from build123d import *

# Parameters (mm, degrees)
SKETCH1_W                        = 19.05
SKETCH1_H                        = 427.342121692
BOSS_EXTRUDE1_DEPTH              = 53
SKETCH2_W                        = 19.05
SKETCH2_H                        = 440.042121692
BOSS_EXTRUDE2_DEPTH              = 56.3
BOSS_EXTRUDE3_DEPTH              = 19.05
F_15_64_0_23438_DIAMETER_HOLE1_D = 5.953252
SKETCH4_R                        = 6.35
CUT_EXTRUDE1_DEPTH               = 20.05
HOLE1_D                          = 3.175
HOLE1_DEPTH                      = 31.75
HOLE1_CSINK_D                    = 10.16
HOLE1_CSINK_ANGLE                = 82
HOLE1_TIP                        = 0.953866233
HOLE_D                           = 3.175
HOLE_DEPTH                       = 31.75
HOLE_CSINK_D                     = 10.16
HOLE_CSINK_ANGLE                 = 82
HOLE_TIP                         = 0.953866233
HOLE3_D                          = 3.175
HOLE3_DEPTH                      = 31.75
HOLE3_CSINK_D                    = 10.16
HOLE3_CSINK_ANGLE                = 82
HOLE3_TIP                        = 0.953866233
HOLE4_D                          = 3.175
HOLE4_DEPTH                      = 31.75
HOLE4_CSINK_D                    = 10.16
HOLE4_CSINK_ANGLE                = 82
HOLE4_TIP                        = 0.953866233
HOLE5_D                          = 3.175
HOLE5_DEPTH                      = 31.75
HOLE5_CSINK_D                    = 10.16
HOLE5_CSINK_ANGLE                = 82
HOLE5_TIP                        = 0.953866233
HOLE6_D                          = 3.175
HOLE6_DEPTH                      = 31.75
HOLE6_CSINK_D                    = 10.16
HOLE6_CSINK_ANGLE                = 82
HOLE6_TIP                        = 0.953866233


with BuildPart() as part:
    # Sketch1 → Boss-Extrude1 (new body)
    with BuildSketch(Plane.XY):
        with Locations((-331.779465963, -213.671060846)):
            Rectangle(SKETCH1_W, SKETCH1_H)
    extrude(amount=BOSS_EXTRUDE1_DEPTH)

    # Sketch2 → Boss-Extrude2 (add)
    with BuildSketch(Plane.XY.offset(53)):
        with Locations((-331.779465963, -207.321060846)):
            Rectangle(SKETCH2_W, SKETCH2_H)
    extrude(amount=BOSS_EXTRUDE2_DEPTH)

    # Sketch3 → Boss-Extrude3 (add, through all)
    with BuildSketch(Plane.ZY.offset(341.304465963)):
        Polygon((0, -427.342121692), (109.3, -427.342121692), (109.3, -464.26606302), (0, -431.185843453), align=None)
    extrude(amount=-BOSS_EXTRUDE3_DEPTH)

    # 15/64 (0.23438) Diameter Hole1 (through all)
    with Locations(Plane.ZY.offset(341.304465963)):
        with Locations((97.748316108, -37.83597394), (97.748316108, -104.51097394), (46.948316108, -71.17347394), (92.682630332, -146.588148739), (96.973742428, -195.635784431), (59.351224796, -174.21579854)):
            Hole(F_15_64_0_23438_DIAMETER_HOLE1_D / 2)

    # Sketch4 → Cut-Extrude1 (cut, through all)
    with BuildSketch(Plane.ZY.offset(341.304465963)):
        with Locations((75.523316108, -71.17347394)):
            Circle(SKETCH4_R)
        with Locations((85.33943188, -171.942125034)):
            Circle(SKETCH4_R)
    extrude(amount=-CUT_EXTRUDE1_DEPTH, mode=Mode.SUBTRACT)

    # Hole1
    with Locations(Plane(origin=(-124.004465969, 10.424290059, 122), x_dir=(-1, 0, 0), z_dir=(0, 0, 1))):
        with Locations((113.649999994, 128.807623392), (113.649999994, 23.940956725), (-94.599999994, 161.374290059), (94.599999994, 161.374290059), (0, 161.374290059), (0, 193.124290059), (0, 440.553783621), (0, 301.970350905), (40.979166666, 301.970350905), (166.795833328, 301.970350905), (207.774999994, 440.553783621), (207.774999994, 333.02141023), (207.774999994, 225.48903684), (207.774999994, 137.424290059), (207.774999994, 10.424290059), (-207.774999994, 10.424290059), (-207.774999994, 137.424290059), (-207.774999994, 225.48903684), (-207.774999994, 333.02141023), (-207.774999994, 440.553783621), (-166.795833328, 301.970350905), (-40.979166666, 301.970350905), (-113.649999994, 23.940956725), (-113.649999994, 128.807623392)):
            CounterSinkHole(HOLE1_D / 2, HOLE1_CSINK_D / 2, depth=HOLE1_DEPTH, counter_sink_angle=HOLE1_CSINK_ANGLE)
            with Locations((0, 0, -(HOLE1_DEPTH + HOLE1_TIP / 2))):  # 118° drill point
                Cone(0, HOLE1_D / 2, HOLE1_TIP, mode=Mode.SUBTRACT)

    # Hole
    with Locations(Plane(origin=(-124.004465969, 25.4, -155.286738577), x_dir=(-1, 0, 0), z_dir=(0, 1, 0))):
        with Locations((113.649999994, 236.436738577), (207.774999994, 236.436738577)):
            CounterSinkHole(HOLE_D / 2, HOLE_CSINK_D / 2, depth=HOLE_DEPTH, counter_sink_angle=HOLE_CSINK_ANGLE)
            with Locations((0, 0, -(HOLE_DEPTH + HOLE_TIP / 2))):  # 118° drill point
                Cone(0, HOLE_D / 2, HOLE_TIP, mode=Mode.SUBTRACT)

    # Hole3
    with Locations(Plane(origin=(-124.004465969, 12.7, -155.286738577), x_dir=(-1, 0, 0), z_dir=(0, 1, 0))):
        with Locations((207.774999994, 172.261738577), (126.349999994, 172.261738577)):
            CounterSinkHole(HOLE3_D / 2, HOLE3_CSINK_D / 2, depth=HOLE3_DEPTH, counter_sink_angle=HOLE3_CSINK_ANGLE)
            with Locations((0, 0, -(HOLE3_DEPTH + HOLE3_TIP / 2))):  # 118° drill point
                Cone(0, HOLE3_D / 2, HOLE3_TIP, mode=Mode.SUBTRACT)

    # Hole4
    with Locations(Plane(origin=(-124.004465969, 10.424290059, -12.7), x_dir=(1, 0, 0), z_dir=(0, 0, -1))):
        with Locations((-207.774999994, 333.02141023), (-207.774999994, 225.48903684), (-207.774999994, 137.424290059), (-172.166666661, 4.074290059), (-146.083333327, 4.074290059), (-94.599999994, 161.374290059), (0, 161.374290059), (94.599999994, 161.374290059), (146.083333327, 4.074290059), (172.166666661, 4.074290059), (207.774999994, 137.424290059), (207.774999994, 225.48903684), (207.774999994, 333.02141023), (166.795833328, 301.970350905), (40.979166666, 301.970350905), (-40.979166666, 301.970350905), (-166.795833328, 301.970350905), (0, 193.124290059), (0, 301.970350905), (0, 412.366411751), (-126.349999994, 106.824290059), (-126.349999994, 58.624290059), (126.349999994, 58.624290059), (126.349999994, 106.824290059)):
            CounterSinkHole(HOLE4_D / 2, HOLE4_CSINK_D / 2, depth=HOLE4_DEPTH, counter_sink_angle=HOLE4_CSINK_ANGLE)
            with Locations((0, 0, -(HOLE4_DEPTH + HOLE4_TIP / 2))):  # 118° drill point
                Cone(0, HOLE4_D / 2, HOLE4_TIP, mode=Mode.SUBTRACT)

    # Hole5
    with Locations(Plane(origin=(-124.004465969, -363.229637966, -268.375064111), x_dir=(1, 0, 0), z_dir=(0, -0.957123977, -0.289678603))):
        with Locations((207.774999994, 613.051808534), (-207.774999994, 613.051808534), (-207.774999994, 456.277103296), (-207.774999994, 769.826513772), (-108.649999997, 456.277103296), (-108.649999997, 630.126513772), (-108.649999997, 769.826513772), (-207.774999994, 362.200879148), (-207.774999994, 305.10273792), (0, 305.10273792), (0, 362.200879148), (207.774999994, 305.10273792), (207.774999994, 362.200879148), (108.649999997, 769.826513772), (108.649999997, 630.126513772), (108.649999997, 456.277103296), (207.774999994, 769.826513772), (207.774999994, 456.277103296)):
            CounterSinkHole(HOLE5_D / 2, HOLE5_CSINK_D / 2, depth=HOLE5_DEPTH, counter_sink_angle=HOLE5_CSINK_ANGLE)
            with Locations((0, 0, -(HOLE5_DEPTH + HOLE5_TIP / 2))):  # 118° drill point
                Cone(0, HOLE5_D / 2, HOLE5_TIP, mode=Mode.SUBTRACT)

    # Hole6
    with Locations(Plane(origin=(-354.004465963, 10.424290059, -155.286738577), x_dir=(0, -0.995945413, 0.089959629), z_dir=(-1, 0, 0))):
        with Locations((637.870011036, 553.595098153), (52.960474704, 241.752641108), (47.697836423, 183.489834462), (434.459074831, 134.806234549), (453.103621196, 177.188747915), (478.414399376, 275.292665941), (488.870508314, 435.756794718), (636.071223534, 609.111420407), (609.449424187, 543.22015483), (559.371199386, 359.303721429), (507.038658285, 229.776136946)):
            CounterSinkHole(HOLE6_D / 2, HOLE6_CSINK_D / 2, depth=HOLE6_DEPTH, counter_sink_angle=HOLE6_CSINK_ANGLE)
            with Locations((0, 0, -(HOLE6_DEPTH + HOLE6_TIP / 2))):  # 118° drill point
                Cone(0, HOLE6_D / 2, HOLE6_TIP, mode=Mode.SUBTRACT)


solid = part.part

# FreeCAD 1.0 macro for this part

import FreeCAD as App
import Part
import Sketcher
Q = App.Units.Quantity


def add_polygon(sketch, points):
    """Adds a closed chain of lines whose ends are joined by coincident constraints."""
    first, n = sketch.GeometryCount, len(points)
    for a, b in zip(points, points[1:] + points[:1]):
        sketch.addGeometry(Part.LineSegment(App.Vector(*a, 0), App.Vector(*b, 0)), False)
    for i in range(n):
        sketch.addConstraint(Sketcher.Constraint("Coincident", first + i, 2, first + (i + 1) % n, 1))

doc = App.newDocument("Part")
params = doc.addObject("Spreadsheet::Sheet", "Params")
for row, (alias, value) in enumerate([
    ("sketch1_width", "0.75 in"),
    ("pad1_length", "53 mm"),
    ("sketch2_width", "0.75 in"),
    ("pad2_length", "56.3 mm"),
    ("pad3_length", "0.75 in"),
    ("hole_diameter", "5.953252 mm"),
    ("sketch5_diameter", "0.5 in"),
    ("sketch6_diameter", "0.125 in"),
    ("hole2_diameter", "0.125 in"),
    ("hole2_depth", "1.25 in"),
    ("hole2_csink_diameter", "0.4 in"),
    ("sketch7_diameter", "0.125 in"),
    ("hole3_diameter", "0.125 in"),
    ("hole3_depth", "1.25 in"),
    ("hole3_csink_diameter", "0.4 in"),
    ("sketch8_diameter", "0.125 in"),
    ("hole4_diameter", "0.125 in"),
    ("hole4_depth", "1.25 in"),
    ("hole4_csink_diameter", "0.4 in"),
    ("sketch9_diameter", "0.125 in"),
    ("hole5_diameter", "0.125 in"),
    ("hole5_depth", "1.25 in"),
    ("hole5_csink_diameter", "0.4 in"),
    ("sketch10_diameter", "0.125 in"),
    ("hole6_diameter", "0.125 in"),
    ("hole6_depth", "1.25 in"),
    ("hole6_csink_diameter", "0.4 in"),
    ("sketch11_diameter", "0.125 in"),
    ("hole7_diameter", "0.125 in"),
    ("hole7_depth", "1.25 in"),
    ("hole7_csink_diameter", "0.4 in"),
], start=1):
    params.set(f"A{row}", alias)
    params.set(f"B{row}", "=" + value)
    params.setAlias(f"B{row}", alias)

body = doc.addObject("PartDesign::Body", "Body")

# Sketch on XY plane
sketch1 = body.newObject("Sketcher::SketchObject", "Sketch")
sketch1.AttachmentSupport = (doc.getObject("XY_Plane"), [""])
sketch1.MapMode = "FlatFace"
add_polygon(sketch1, [(-341.304466, 0), (-341.304466, -427.342122), (-322.254466, -427.342122), (-322.254466, 0)])  # lines 0-3
sketch1.addConstraint(Sketcher.Constraint("Vertical", 0))
sketch1.addConstraint(Sketcher.Constraint("Horizontal", 1))
sketch1.addConstraint(Sketcher.Constraint("Vertical", 2))
sketch1.addConstraint(Sketcher.Constraint("Horizontal", 3))
sketch1.addConstraint(Sketcher.Constraint("PointOnObject", 2, 2, -1))
sketch1.addConstraint(Sketcher.Constraint("DistanceX", 1, 1, 1, 2, Q("0.75 in")))
sketch1.addConstraint(Sketcher.Constraint("DistanceY", 0, 2, 0, 1, 427.342122))
sketch1.addConstraint(Sketcher.Constraint("DistanceX", 0, 2, -1, 1, 341.304466))
sketch1.setExpression("Constraints[9]", "Params.sketch1_width")
pad1 = body.newObject("PartDesign::Pad", "Pad")
pad1.Profile = sketch1
pad1.setExpression("Length", "Params.pad1_length")

# Sketch on XY plane
sketch2 = body.newObject("Sketcher::SketchObject", "Sketch001")
sketch2.AttachmentSupport = (doc.getObject("XY_Plane"), [""])
sketch2.MapMode = "FlatFace"
sketch2.AttachmentOffset = App.Placement(App.Vector(0, 0, 53), App.Rotation())
add_polygon(sketch2, [(-341.304466, 12.7), (-341.304466, -427.342122), (-322.254466, -427.342122), (-322.254466, 12.7)])  # lines 0-3
sketch2.addConstraint(Sketcher.Constraint("Vertical", 0))
sketch2.addConstraint(Sketcher.Constraint("Horizontal", 1))
sketch2.addConstraint(Sketcher.Constraint("Vertical", 2))
sketch2.addConstraint(Sketcher.Constraint("Horizontal", 3))
sketch2.addConstraint(Sketcher.Constraint("DistanceX", 1, 1, 1, 2, Q("0.75 in")))
sketch2.addConstraint(Sketcher.Constraint("DistanceY", -1, 1, 2, 2, Q("0.5 in")))
sketch2.addConstraint(Sketcher.Constraint("DistanceY", 0, 2, 0, 1, 440.042122))
sketch2.addConstraint(Sketcher.Constraint("DistanceX", 0, 2, -1, 1, 341.304466))
sketch2.setExpression("Constraints[8]", "Params.sketch2_width")
pad2 = body.newObject("PartDesign::Pad", "Pad001")
pad2.Profile = sketch2
pad2.setExpression("Length", "Params.pad2_length")

# Sketch on YZ plane
sketch3 = body.newObject("Sketcher::SketchObject", "Sketch002")
sketch3.AttachmentSupport = (doc.getObject("YZ_Plane"), [""])
sketch3.MapMode = "FlatFace"
sketch3.AttachmentOffset = App.Placement(App.Vector(0, 0, -341.304466), App.Rotation())
add_polygon(sketch3, [(-427.342122, 109.3), (-427.342122, 0), (-431.185843, 0), (-464.266063, 109.3)])  # lines 0-3
sketch3.addConstraint(Sketcher.Constraint("Vertical", 0))
sketch3.addConstraint(Sketcher.Constraint("Horizontal", 1))
sketch3.addConstraint(Sketcher.Constraint("Horizontal", 3))
sketch3.addConstraint(Sketcher.Constraint("PointOnObject", 0, 2, -1))
sketch3.addConstraint(Sketcher.Constraint("DistanceY", 0, 2, 0, 1, 109.3))
sketch3.addConstraint(Sketcher.Constraint("DistanceX", 1, 2, 1, 1, 3.843722))
sketch3.addConstraint(Sketcher.Constraint("DistanceX", 3, 1, 3, 2, 36.923941))
sketch3.addConstraint(Sketcher.Constraint("DistanceX", 0, 2, -1, 1, 427.342122))
pad3 = body.newObject("PartDesign::Pad", "Pad002")
pad3.Profile = sketch3
pad3.setExpression("Length", "Params.pad3_length")

# Sketch on YZ plane
sketch4 = body.newObject("Sketcher::SketchObject", "Sketch003")
sketch4.AttachmentSupport = (doc.getObject("YZ_Plane"), [""])
sketch4.MapMode = "FlatFace"
sketch4.AttachmentOffset = App.Placement(App.Vector(0, 0, -341.304466), App.Rotation())
sketch4.addGeometry(Part.Circle(App.Vector(-37.835974, 97.748316, 0), App.Vector(0, 0, 1), 2.976626), False)
sketch4.addGeometry(Part.Circle(App.Vector(-104.510974, 97.748316, 0), App.Vector(0, 0, 1), 2.976626), False)
sketch4.addGeometry(Part.Circle(App.Vector(-71.173474, 46.948316, 0), App.Vector(0, 0, 1), 2.976626), False)
sketch4.addGeometry(Part.Circle(App.Vector(-146.588149, 92.68263, 0), App.Vector(0, 0, 1), 2.976626), False)
sketch4.addGeometry(Part.Circle(App.Vector(-195.635784, 96.973742, 0), App.Vector(0, 0, 1), 2.976626), False)
sketch4.addGeometry(Part.Circle(App.Vector(-174.215799, 59.351225, 0), App.Vector(0, 0, 1), 2.976626), False)
sketch4.addConstraint(Sketcher.Constraint("Equal", 0, 1))
sketch4.addConstraint(Sketcher.Constraint("Equal", 1, 2))
sketch4.addConstraint(Sketcher.Constraint("Equal", 2, 3))
sketch4.addConstraint(Sketcher.Constraint("Equal", 3, 4))
sketch4.addConstraint(Sketcher.Constraint("Equal", 4, 5))
sketch4.addConstraint(Sketcher.Constraint("Horizontal", 0, 3, 1, 3))
sketch4.addConstraint(Sketcher.Constraint("DistanceY", 2, 3, 0, 3, Q("2 in")))
sketch4.addConstraint(Sketcher.Constraint("DistanceX", 1, 3, 0, 3, Q("2.625 in")))
sketch4.addConstraint(Sketcher.Constraint("DistanceX", 2, 3, 0, 3, Q("1.3125 in")))
sketch4.addConstraint(Sketcher.Constraint("Diameter", 0, 5.953252))
sketch4.addConstraint(Sketcher.Constraint("DistanceX", 5, 3, -1, 1, 174.215799))
sketch4.addConstraint(Sketcher.Constraint("DistanceX", 3, 3, -1, 1, 146.588149))
sketch4.addConstraint(Sketcher.Constraint("DistanceY", -1, 1, 3, 3, 92.68263))
sketch4.addConstraint(Sketcher.Constraint("DistanceX", 4, 3, 1, 3, 91.12481))
sketch4.addConstraint(Sketcher.Constraint("DistanceY", 5, 3, 1, 3, 38.397091))
sketch4.addConstraint(Sketcher.Constraint("DistanceX", 0, 3, -1, 1, 37.835974))
sketch4.addConstraint(Sketcher.Constraint("DistanceY", -1, 1, 0, 3, 97.748316))
sketch4.addConstraint(Sketcher.Constraint("DistanceY", -1, 1, 4, 3, 96.973742))
doc.recompute()
hole = body.newObject("PartDesign::Hole", "Hole")
hole.Profile = sketch4
hole.ThreadType = "None"
hole.setExpression("Diameter", "Params.hole_diameter")
hole.DepthType = "ThroughAll"
hole.Reversed = True

# Sketch on YZ plane
sketch5 = body.newObject("Sketcher::SketchObject", "Sketch004")
sketch5.AttachmentSupport = (doc.getObject("YZ_Plane"), [""])
sketch5.MapMode = "FlatFace"
sketch5.AttachmentOffset = App.Placement(App.Vector(0, 0, -341.304466), App.Rotation())
sketch5.addGeometry(Part.Circle(App.Vector(-71.173474, 75.523316, 0), App.Vector(0, 0, 1), 6.35), False)
sketch5.addGeometry(Part.Circle(App.Vector(-171.942125, 85.339432, 0), App.Vector(0, 0, 1), 6.35), False)
sketch5.addConstraint(Sketcher.Constraint("Equal", 0, 1))
sketch5.addConstraint(Sketcher.Constraint("Diameter", 0, Q("0.5 in")))
sketch5.addConstraint(Sketcher.Constraint("DistanceY", -1, 1, 1, 3, 85.339432))
sketch5.addConstraint(Sketcher.Constraint("DistanceX", 1, 3, 0, 3, 100.768651))
sketch5.addConstraint(Sketcher.Constraint("DistanceX", 0, 3, -1, 1, 71.173474))
sketch5.addConstraint(Sketcher.Constraint("DistanceY", -1, 1, 0, 3, 75.523316))
sketch5.setExpression("Constraints[1]", "Params.sketch5_diameter")
pocket1 = body.newObject("PartDesign::Pocket", "Pocket")
pocket1.Profile = sketch5
pocket1.Type = "ThroughAll"
pocket1.Reversed = True

# Sketch on XY plane
sketch6 = body.newObject("Sketcher::SketchObject", "Sketch005")
sketch6.AttachmentSupport = (doc.getObject("XY_Plane"), [""])
sketch6.MapMode = "FlatFace"
sketch6.AttachmentOffset = App.Placement(App.Vector(0, 0, 122), App.Rotation())
sketch6.addGeometry(Part.Circle(App.Vector(-237.654466, -118.383333, 0), App.Vector(0, 0, 1), 1.5875), False)
sketch6.addGeometry(Part.Circle(App.Vector(-237.654466, -13.516667, 0), App.Vector(0, 0, 1), 1.5875), False)
sketch6.addGeometry(Part.Circle(App.Vector(-29.404466, -150.95, 0), App.Vector(0, 0, 1), 1.5875), False)
sketch6.addGeometry(Part.Circle(App.Vector(-218.604466, -150.95, 0), App.Vector(0, 0, 1), 1.5875), False)
sketch6.addGeometry(Part.Circle(App.Vector(-124.004466, -150.95, 0), App.Vector(0, 0, 1), 1.5875), False)
sketch6.addGeometry(Part.Circle(App.Vector(-124.004466, -182.7, 0), App.Vector(0, 0, 1), 1.5875), False)
sketch6.addGeometry(Part.Circle(App.Vector(-124.004466, -430.129494, 0), App.Vector(0, 0, 1), 1.5875), False)
sketch6.addGeometry(Part.Circle(App.Vector(-124.004466, -291.546061, 0), App.Vector(0, 0, 1), 1.5875), False)
sketch6.addGeometry(Part.Circle(App.Vector(-164.983633, -291.546061, 0), App.Vector(0, 0, 1), 1.5875), False)
sketch6.addGeometry(Part.Circle(App.Vector(-290.800299, -291.546061, 0), App.Vector(0, 0, 1), 1.5875), False)
sketch6.addGeometry(Part.Circle(App.Vector(-331.779466, -430.129494, 0), App.Vector(0, 0, 1), 1.5875), False)
sketch6.addGeometry(Part.Circle(App.Vector(-331.779466, -322.59712, 0), App.Vector(0, 0, 1), 1.5875), False)
sketch6.addGeometry(Part.Circle(App.Vector(-331.779466, -215.064747, 0), App.Vector(0, 0, 1), 1.5875), False)
sketch6.addGeometry(Part.Circle(App.Vector(-331.779466, -127, 0), App.Vector(0, 0, 1), 1.5875), False)
sketch6.addGeometry(Part.Circle(App.Vector(-331.779466, 0, 0), App.Vector(0, 0, 1), 1.5875), False)
sketch6.addGeometry(Part.Circle(App.Vector(83.770534, 0, 0), App.Vector(0, 0, 1), 1.5875), False)
sketch6.addGeometry(Part.Circle(App.Vector(83.770534, -127, 0), App.Vector(0, 0, 1), 1.5875), False)
sketch6.addGeometry(Part.Circle(App.Vector(83.770534, -215.064747, 0), App.Vector(0, 0, 1), 1.5875), False)
sketch6.addGeometry(Part.Circle(App.Vector(83.770534, -322.59712, 0), App.Vector(0, 0, 1), 1.5875), False)
sketch6.addGeometry(Part.Circle(App.Vector(83.770534, -430.129494, 0), App.Vector(0, 0, 1), 1.5875), False)
sketch6.addGeometry(Part.Circle(App.Vector(42.791367, -291.546061, 0), App.Vector(0, 0, 1), 1.5875), False)
sketch6.addGeometry(Part.Circle(App.Vector(-83.025299, -291.546061, 0), App.Vector(0, 0, 1), 1.5875), False)
sketch6.addGeometry(Part.Circle(App.Vector(-10.354466, -13.516667, 0), App.Vector(0, 0, 1), 1.5875), False)
sketch6.addGeometry(Part.Circle(App.Vector(-10.354466, -118.383333, 0), App.Vector(0, 0, 1), 1.5875), False)
sketch6.addConstraint(Sketcher.Constraint("Equal", 0, 1))
sketch6.addConstraint(Sketcher.Constraint("Equal", 1, 2))
sketch6.addConstraint(Sketcher.Constraint("Equal", 2, 3))
sketch6.addConstraint(Sketcher.Constraint("Equal", 3, 4))
sketch6.addConstraint(Sketcher.Constraint("Equal", 4, 5))
sketch6.addConstraint(Sketcher.Constraint("Equal", 5, 6))
sketch6.addConstraint(Sketcher.Constraint("Equal", 6, 7))
sketch6.addConstraint(Sketcher.Constraint("Equal", 7, 8))
sketch6.addConstraint(Sketcher.Constraint("Equal", 8, 9))
sketch6.addConstraint(Sketcher.Constraint("Equal", 9, 10))
sketch6.addConstraint(Sketcher.Constraint("Equal", 10, 11))
sketch6.addConstraint(Sketcher.Constraint("Equal", 11, 12))
sketch6.addConstraint(Sketcher.Constraint("Equal", 12, 13))
sketch6.addConstraint(Sketcher.Constraint("Equal", 13, 14))
sketch6.addConstraint(Sketcher.Constraint("Equal", 14, 15))
sketch6.addConstraint(Sketcher.Constraint("Equal", 15, 16))
sketch6.addConstraint(Sketcher.Constraint("Equal", 16, 17))
sketch6.addConstraint(Sketcher.Constraint("Equal", 17, 18))
sketch6.addConstraint(Sketcher.Constraint("Equal", 18, 19))
sketch6.addConstraint(Sketcher.Constraint("Equal", 19, 20))
sketch6.addConstraint(Sketcher.Constraint("Equal", 20, 21))
sketch6.addConstraint(Sketcher.Constraint("Equal", 21, 22))
sketch6.addConstraint(Sketcher.Constraint("Equal", 22, 23))
sketch6.addConstraint(Sketcher.Constraint("PointOnObject", 14, 3, -1))
sketch6.addConstraint(Sketcher.Constraint("PointOnObject", 15, 3, -1))
sketch6.addConstraint(Sketcher.Constraint("Horizontal", 2, 3, 3, 3))
sketch6.addConstraint(Sketcher.Constraint("Horizontal", 3, 3, 4, 3))
sketch6.addConstraint(Sketcher.Constraint("Horizontal", 7, 3, 8, 3))
sketch6.addConstraint(Sketcher.Constraint("Horizontal", 8, 3, 9, 3))
sketch6.addConstraint(Sketcher.Constraint("Horizontal", 6, 3, 10, 3))
sketch6.addConstraint(Sketcher.Constraint("Horizontal", 13, 3, 16, 3))
sketch6.addConstraint(Sketcher.Constraint("Horizontal", 12, 3, 17, 3))
sketch6.addConstraint(Sketcher.Constraint("Horizontal", 11, 3, 18, 3))
sketch6.addConstraint(Sketcher.Constraint("Horizontal", 10, 3, 19, 3))
sketch6.addConstraint(Sketcher.Constraint("Horizontal", 9, 3, 20, 3))
sketch6.addConstraint(Sketcher.Constraint("Horizontal", 20, 3, 21, 3))
sketch6.addConstraint(Sketcher.Constraint("Horizontal", 1, 3, 22, 3))
sketch6.addConstraint(Sketcher.Constraint("Horizontal", 0, 3, 23, 3))
sketch6.addConstraint(Sketcher.Constraint("Vertical", 0, 3, 1, 3))
sketch6.addConstraint(Sketcher.Constraint("Vertical", 4, 3, 5, 3))
sketch6.addConstraint(Sketcher.Constraint("Vertical", 5, 3, 6, 3))
sketch6.addConstraint(Sketcher.Constraint("Vertical", 6, 3, 7, 3))
sketch6.addConstraint(Sketcher.Constraint("Vertical", 10, 3, 11, 3))
sketch6.addConstraint(Sketcher.Constraint("Vertical", 11, 3, 12, 3))
sketch6.addConstraint(Sketcher.Constraint("Vertical", 12, 3, 13, 3))
sketch6.addConstraint(Sketcher.Constraint("Vertical", 13, 3, 14, 3))
sketch6.addConstraint(Sketcher.Constraint("Vertical", 15, 3, 16, 3))
sketch6.addConstraint(Sketcher.Constraint("Vertical", 16, 3, 17, 3))
sketch6.addConstraint(Sketcher.Constraint("Vertical", 17, 3, 18, 3))
sketch6.addConstraint(Sketcher.Constraint("Vertical", 18, 3, 19, 3))
sketch6.addConstraint(Sketcher.Constraint("Vertical", 22, 3, 23, 3))
sketch6.addConstraint(Sketcher.Constraint("Diameter", 0, Q("0.125 in")))
sketch6.addConstraint(Sketcher.Constraint("DistanceY", 13, 3, -1, 1, Q("5 in")))
sketch6.addConstraint(Sketcher.Constraint("DistanceX", 0, 3, 3, 3, Q("0.75 in")))
sketch6.addConstraint(Sketcher.Constraint("DistanceY", 5, 3, 4, 3, Q("1.25 in")))
sketch6.addConstraint(Sketcher.Constraint("DistanceX", 2, 3, 22, 3, Q("0.75 in")))
sketch6.addConstraint(Sketcher.Constraint("DistanceY", 2, 3, -1, 1, 150.95))
sketch6.addConstraint(Sketcher.Constraint("DistanceX", 9, 3, -1, 1, 290.800299))
sketch6.addConstraint(Sketcher.Constraint("DistanceX", 21, 3, -1, 1, 83.025299))
sketch6.addConstraint(Sketcher.Constraint("DistanceX", 0, 3, 2, 3, 208.25))
sketch6.addConstraint(Sketcher.Constraint("DistanceX", 4, 3, 2, 3, 94.6))
sketch6.addConstraint(Sketcher.Constraint("DistanceX", 10, 3, 6, 3, 207.775))
sketch6.addConstraint(Sketcher.Constraint("DistanceX", 2, 3, 15, 3, 113.175))
sketch6.addConstraint(Sketcher.Constraint("DistanceY", 7, 3, -1, 1, 291.546061))
sketch6.addConstraint(Sketcher.Constraint("DistanceY", 11, 3, -1, 1, 322.59712))
sketch6.addConstraint(Sketcher.Constraint("DistanceY", 6, 3, 0, 3, 311.74616))
sketch6.addConstraint(Sketcher.Constraint("DistanceX", 0, 3, -1, 1, 237.654466))
sketch6.addConstraint(Sketcher.Constraint("DistanceY", 0, 3, -1, 1, 118.383333))
sketch6.addConstraint(Sketcher.Constraint("DistanceY", 1, 3, -1, 1, 13.516667))
sketch6.addConstraint(Sketcher.Constraint("DistanceX", 8, 3, -1, 1, 164.983633))
sketch6.addConstraint(Sketcher.Constraint("DistanceY", 12, 3, -1, 1, 215.064747))
sketch6.addConstraint(Sketcher.Constraint("DistanceX", -1, 1, 20, 3, 42.791367))
sketch6.setExpression("Constraints[51]", "Params.sketch6_diameter")
doc.recompute()
hole2 = body.newObject("PartDesign::Hole", "Hole001")
hole2.Profile = sketch6
hole2.ThreadType = "None"
hole2.setExpression("Diameter", "Params.hole2_diameter")
hole2.DepthType = "Dimension"
hole2.setExpression("Depth", "Params.hole2_depth")
hole2.DrillPoint = "Angled"
hole2.DrillPointAngle = 118
hole2.HoleCutType = "Countersink"
hole2.setExpression("HoleCutDiameter", "Params.hole2_csink_diameter")
hole2.HoleCutCountersinkAngle = 82

# Sketch on XZ plane
sketch7 = body.newObject("Sketcher::SketchObject", "Sketch006")
sketch7.AttachmentSupport = (doc.getObject("XZ_Plane"), [""])
sketch7.MapMode = "FlatFace"
sketch7.AttachmentOffset = App.Placement(App.Vector(0, 0, -1 * 25.4), App.Rotation())
sketch7.addGeometry(Part.Circle(App.Vector(-237.654466, 81.15, 0), App.Vector(0, 0, 1), 1.5875), False)
sketch7.addGeometry(Part.Circle(App.Vector(-331.779466, 81.15, 0), App.Vector(0, 0, 1), 1.5875), False)
sketch7.addConstraint(Sketcher.Constraint("Equal", 0, 1))
sketch7.addConstraint(Sketcher.Constraint("Horizontal", 0, 3, 1, 3))
sketch7.addConstraint(Sketcher.Constraint("Diameter", 0, Q("0.125 in")))
sketch7.addConstraint(Sketcher.Constraint("DistanceY", -1, 1, 0, 3, 81.15))
sketch7.addConstraint(Sketcher.Constraint("DistanceX", 1, 3, 0, 3, 94.125))
sketch7.addConstraint(Sketcher.Constraint("DistanceX", 0, 3, -1, 1, 237.654466))
sketch7.setExpression("Constraints[2]", "Params.sketch7_diameter")
doc.recompute()
hole3 = body.newObject("PartDesign::Hole", "Hole002")
hole3.Profile = sketch7
hole3.ThreadType = "None"
hole3.setExpression("Diameter", "Params.hole3_diameter")
hole3.DepthType = "Dimension"
hole3.setExpression("Depth", "Params.hole3_depth")
hole3.DrillPoint = "Angled"
hole3.DrillPointAngle = 118
hole3.HoleCutType = "Countersink"
hole3.setExpression("HoleCutDiameter", "Params.hole3_csink_diameter")
hole3.HoleCutCountersinkAngle = 82
hole3.Reversed = True

# Sketch on XZ plane
sketch8 = body.newObject("Sketcher::SketchObject", "Sketch007")
sketch8.AttachmentSupport = (doc.getObject("XZ_Plane"), [""])
sketch8.MapMode = "FlatFace"
sketch8.AttachmentOffset = App.Placement(App.Vector(0, 0, -0.5 * 25.4), App.Rotation())
sketch8.addGeometry(Part.Circle(App.Vector(-331.779466, 16.975, 0), App.Vector(0, 0, 1), 1.5875), False)
sketch8.addGeometry(Part.Circle(App.Vector(-250.354466, 16.975, 0), App.Vector(0, 0, 1), 1.5875), False)
sketch8.addConstraint(Sketcher.Constraint("Equal", 0, 1))
sketch8.addConstraint(Sketcher.Constraint("Horizontal", 0, 3, 1, 3))
sketch8.addConstraint(Sketcher.Constraint("Diameter", 0, Q("0.125 in")))
sketch8.addConstraint(Sketcher.Constraint("DistanceY", -1, 1, 0, 3, 16.975))
sketch8.addConstraint(Sketcher.Constraint("DistanceX", 0, 3, 1, 3, 81.425))
sketch8.addConstraint(Sketcher.Constraint("DistanceX", 0, 3, -1, 1, 331.779466))
sketch8.setExpression("Constraints[2]", "Params.sketch8_diameter")
doc.recompute()
hole4 = body.newObject("PartDesign::Hole", "Hole003")
hole4.Profile = sketch8
hole4.ThreadType = "None"
hole4.setExpression("Diameter", "Params.hole4_diameter")
hole4.DepthType = "Dimension"
hole4.setExpression("Depth", "Params.hole4_depth")
hole4.DrillPoint = "Angled"
hole4.DrillPointAngle = 118
hole4.HoleCutType = "Countersink"
hole4.setExpression("HoleCutDiameter", "Params.hole4_csink_diameter")
hole4.HoleCutCountersinkAngle = 82
hole4.Reversed = True

# Sketch on XY plane
sketch9 = body.newObject("Sketcher::SketchObject", "Sketch008")
sketch9.AttachmentSupport = (doc.getObject("XY_Plane"), [""])
sketch9.MapMode = "FlatFace"
sketch9.AttachmentOffset = App.Placement(App.Vector(0, 0, -0.5 * 25.4), App.Rotation())
sketch9.addGeometry(Part.Circle(App.Vector(-331.779466, -322.59712, 0), App.Vector(0, 0, 1), 1.5875), False)
sketch9.addGeometry(Part.Circle(App.Vector(-331.779466, -215.064747, 0), App.Vector(0, 0, 1), 1.5875), False)
sketch9.addGeometry(Part.Circle(App.Vector(-331.779466, -127, 0), App.Vector(0, 0, 1), 1.5875), False)
sketch9.addGeometry(Part.Circle(App.Vector(-296.171133, 6.35, 0), App.Vector(0, 0, 1), 1.5875), False)
sketch9.addGeometry(Part.Circle(App.Vector(-270.087799, 6.35, 0), App.Vector(0, 0, 1), 1.5875), False)
sketch9.addGeometry(Part.Circle(App.Vector(-218.604466, -150.95, 0), App.Vector(0, 0, 1), 1.5875), False)
sketch9.addGeometry(Part.Circle(App.Vector(-124.004466, -150.95, 0), App.Vector(0, 0, 1), 1.5875), False)
sketch9.addGeometry(Part.Circle(App.Vector(-29.404466, -150.95, 0), App.Vector(0, 0, 1), 1.5875), False)
sketch9.addGeometry(Part.Circle(App.Vector(22.078867, 6.35, 0), App.Vector(0, 0, 1), 1.5875), False)
sketch9.addGeometry(Part.Circle(App.Vector(48.162201, 6.35, 0), App.Vector(0, 0, 1), 1.5875), False)
sketch9.addGeometry(Part.Circle(App.Vector(83.770534, -127, 0), App.Vector(0, 0, 1), 1.5875), False)
sketch9.addGeometry(Part.Circle(App.Vector(83.770534, -215.064747, 0), App.Vector(0, 0, 1), 1.5875), False)
sketch9.addGeometry(Part.Circle(App.Vector(83.770534, -322.59712, 0), App.Vector(0, 0, 1), 1.5875), False)
sketch9.addGeometry(Part.Circle(App.Vector(42.791367, -291.546061, 0), App.Vector(0, 0, 1), 1.5875), False)
sketch9.addGeometry(Part.Circle(App.Vector(-83.025299, -291.546061, 0), App.Vector(0, 0, 1), 1.5875), False)
sketch9.addGeometry(Part.Circle(App.Vector(-164.983633, -291.546061, 0), App.Vector(0, 0, 1), 1.5875), False)
sketch9.addGeometry(Part.Circle(App.Vector(-290.800299, -291.546061, 0), App.Vector(0, 0, 1), 1.5875), False)
sketch9.addGeometry(Part.Circle(App.Vector(-124.004466, -182.7, 0), App.Vector(0, 0, 1), 1.5875), False)
sketch9.addGeometry(Part.Circle(App.Vector(-124.004466, -291.546061, 0), App.Vector(0, 0, 1), 1.5875), False)
sketch9.addGeometry(Part.Circle(App.Vector(-124.004466, -401.942122, 0), App.Vector(0, 0, 1), 1.5875), False)
sketch9.addGeometry(Part.Circle(App.Vector(-250.354466, -96.4, 0), App.Vector(0, 0, 1), 1.5875), False)
sketch9.addGeometry(Part.Circle(App.Vector(-250.354466, -48.2, 0), App.Vector(0, 0, 1), 1.5875), False)
sketch9.addGeometry(Part.Circle(App.Vector(2.345534, -48.2, 0), App.Vector(0, 0, 1), 1.5875), False)
sketch9.addGeometry(Part.Circle(App.Vector(2.345534, -96.4, 0), App.Vector(0, 0, 1), 1.5875), False)
sketch9.addConstraint(Sketcher.Constraint("Equal", 0, 1))
sketch9.addConstraint(Sketcher.Constraint("Equal", 1, 2))
sketch9.addConstraint(Sketcher.Constraint("Equal", 2, 3))
sketch9.addConstraint(Sketcher.Constraint("Equal", 3, 4))
sketch9.addConstraint(Sketcher.Constraint("Equal", 4, 5))
sketch9.addConstraint(Sketcher.Constraint("Equal", 5, 6))
sketch9.addConstraint(Sketcher.Constraint("Equal", 6, 7))
sketch9.addConstraint(Sketcher.Constraint("Equal", 7, 8))
sketch9.addConstraint(Sketcher.Constraint("Equal", 8, 9))
sketch9.addConstraint(Sketcher.Constraint("Equal", 9, 10))
sketch9.addConstraint(Sketcher.Constraint("Equal", 10, 11))
sketch9.addConstraint(Sketcher.Constraint("Equal", 11, 12))
sketch9.addConstraint(Sketcher.Constraint("Equal", 12, 13))
sketch9.addConstraint(Sketcher.Constraint("Equal", 13, 14))
sketch9.addConstraint(Sketcher.Constraint("Equal", 14, 15))
sketch9.addConstraint(Sketcher.Constraint("Equal", 15, 16))
sketch9.addConstraint(Sketcher.Constraint("Equal", 16, 17))
sketch9.addConstraint(Sketcher.Constraint("Equal", 17, 18))
sketch9.addConstraint(Sketcher.Constraint("Equal", 18, 19))
sketch9.addConstraint(Sketcher.Constraint("Equal", 19, 20))
sketch9.addConstraint(Sketcher.Constraint("Equal", 20, 21))
sketch9.addConstraint(Sketcher.Constraint("Equal", 21, 22))
sketch9.addConstraint(Sketcher.Constraint("Equal", 22, 23))
sketch9.addConstraint(Sketcher.Constraint("Horizontal", 3, 3, 4, 3))
sketch9.addConstraint(Sketcher.Constraint("Horizontal", 5, 3, 6, 3))
sketch9.addConstraint(Sketcher.Constraint("Horizontal", 6, 3, 7, 3))
sketch9.addConstraint(Sketcher.Constraint("Horizontal", 4, 3, 8, 3))
sketch9.addConstraint(Sketcher.Constraint("Horizontal", 8, 3, 9, 3))
sketch9.addConstraint(Sketcher.Constraint("Horizontal", 2, 3, 10, 3))
sketch9.addConstraint(Sketcher.Constraint("Horizontal", 1, 3, 11, 3))
sketch9.addConstraint(Sketcher.Constraint("Horizontal", 0, 3, 12, 3))
sketch9.addConstraint(Sketcher.Constraint("Horizontal", 13, 3, 14, 3))
sketch9.addConstraint(Sketcher.Constraint("Horizontal", 14, 3, 15, 3))
sketch9.addConstraint(Sketcher.Constraint("Horizontal", 15, 3, 16, 3))
sketch9.addConstraint(Sketcher.Constraint("Horizontal", 16, 3, 18, 3))
sketch9.addConstraint(Sketcher.Constraint("Horizontal", 21, 3, 22, 3))
sketch9.addConstraint(Sketcher.Constraint("Horizontal", 20, 3, 23, 3))
sketch9.addConstraint(Sketcher.Constraint("Vertical", 0, 3, 1, 3))
sketch9.addConstraint(Sketcher.Constraint("Vertical", 1, 3, 2, 3))
sketch9.addConstraint(Sketcher.Constraint("Vertical", 10, 3, 11, 3))
sketch9.addConstraint(Sketcher.Constraint("Vertical", 11, 3, 12, 3))
sketch9.addConstraint(Sketcher.Constraint("Vertical", 6, 3, 17, 3))
sketch9.addConstraint(Sketcher.Constraint("Vertical", 17, 3, 18, 3))
sketch9.addConstraint(Sketcher.Constraint("Vertical", 18, 3, 19, 3))
sketch9.addConstraint(Sketcher.Constraint("Vertical", 20, 3, 21, 3))
sketch9.addConstraint(Sketcher.Constraint("Vertical", 22, 3, 23, 3))
sketch9.addConstraint(Sketcher.Constraint("Diameter", 0, Q("0.125 in")))
sketch9.addConstraint(Sketcher.Constraint("DistanceY", 2, 3, -1, 1, Q("5 in")))
sketch9.addConstraint(Sketcher.Constraint("DistanceY", -1, 1, 3, 3, Q("0.25 in")))
sketch9.addConstraint(Sketcher.Constraint("DistanceY", 17, 3, 6, 3, Q("1.25 in")))
sketch9.addConstraint(Sketcher.Constraint("DistanceX", 20, 3, 5, 3, Q("1.25 in")))
sketch9.addConstraint(Sketcher.Constraint("DistanceX", 7, 3, 22, 3, Q("1.25 in")))
sketch9.addConstraint(Sketcher.Constraint("DistanceX", 4, 3, -1, 1, 270.087799))
sketch9.addConstraint(Sketcher.Constraint("DistanceY", 5, 3, -1, 1, 150.95))
sketch9.addConstraint(Sketcher.Constraint("DistanceX", -1, 1, 9, 3, 48.162201))
sketch9.addConstraint(Sketcher.Constraint("DistanceX", 14, 3, -1, 1, 83.025299))
sketch9.addConstraint(Sketcher.Constraint("DistanceX", 16, 3, -1, 1, 290.800299))
sketch9.addConstraint(Sketcher.Constraint("DistanceY", 20, 3, -1, 1, 96.4))
sketch9.addConstraint(Sketcher.Constraint("DistanceY", 21, 3, -1, 1, 48.2))
sketch9.addConstraint(Sketcher.Constraint("DistanceX", 2, 3, 5, 3, 113.175))
sketch9.addConstraint(Sketcher.Constraint("DistanceX", 5, 3, 6, 3, 94.6))
sketch9.addConstraint(Sketcher.Constraint("DistanceX", 6, 3, 7, 3, 94.6))
sketch9.addConstraint(Sketcher.Constraint("DistanceX", 3, 3, 8, 3, 318.25))
sketch9.addConstraint(Sketcher.Constraint("DistanceX", 7, 3, 10, 3, 113.175))
sketch9.addConstraint(Sketcher.Constraint("DistanceY", 0, 3, -1, 1, 322.59712))
sketch9.addConstraint(Sketcher.Constraint("DistanceY", 13, 3, -1, 1, 291.546061))
sketch9.addConstraint(Sketcher.Constraint("DistanceY", 19, 3, -1, 1, 401.942122))
sketch9.addConstraint(Sketcher.Constraint("DistanceX", 0, 3, -1, 1, 331.779466))
sketch9.addConstraint(Sketcher.Constraint("DistanceY", 1, 3, -1, 1, 215.064747))
sketch9.addConstraint(Sketcher.Constraint("DistanceX", 3, 3, -1, 1, 296.171133))
sketch9.addConstraint(Sketcher.Constraint("DistanceX", -1, 1, 13, 3, 42.791367))
sketch9.addConstraint(Sketcher.Constraint("DistanceX", 15, 3, -1, 1, 164.983633))
sketch9.setExpression("Constraints[46]", "Params.sketch9_diameter")
doc.recompute()
hole5 = body.newObject("PartDesign::Hole", "Hole004")
hole5.Profile = sketch9
hole5.ThreadType = "None"
hole5.setExpression("Diameter", "Params.hole5_diameter")
hole5.DepthType = "Dimension"
hole5.setExpression("Depth", "Params.hole5_depth")
hole5.DrillPoint = "Angled"
hole5.DrillPointAngle = 118
hole5.HoleCutType = "Countersink"
hole5.setExpression("HoleCutDiameter", "Params.hole5_csink_diameter")
hole5.HoleCutCountersinkAngle = 82
hole5.Reversed = True

# Sketch on an angled plane
sketch10 = body.newObject("Sketcher::SketchObject", "Sketch009")
sketch10.Placement = App.Placement(App.Vector(0, -407.158921, -123.228788), App.Rotation(App.Vector(1, 0, 0), App.Vector(0, -0.289678603, 0.957123977), App.Vector(0, -0.957123977, -0.289678603), "ZXY"))
sketch10.addGeometry(Part.Circle(App.Vector(83.770534, 461.403454, 0), App.Vector(0, 0, 1), 1.5875), False)
sketch10.addGeometry(Part.Circle(App.Vector(-331.779466, 461.403454, 0), App.Vector(0, 0, 1), 1.5875), False)
sketch10.addGeometry(Part.Circle(App.Vector(-331.779466, 304.628749, 0), App.Vector(0, 0, 1), 1.5875), False)
sketch10.addGeometry(Part.Circle(App.Vector(-331.779466, 618.178159, 0), App.Vector(0, 0, 1), 1.5875), False)
sketch10.addGeometry(Part.Circle(App.Vector(-232.654466, 304.628749, 0), App.Vector(0, 0, 1), 1.5875), False)
sketch10.addGeometry(Part.Circle(App.Vector(-232.654466, 478.478159, 0), App.Vector(0, 0, 1), 1.5875), False)
sketch10.addGeometry(Part.Circle(App.Vector(-232.654466, 618.178159, 0), App.Vector(0, 0, 1), 1.5875), False)
sketch10.addGeometry(Part.Circle(App.Vector(-331.779466, 210.552525, 0), App.Vector(0, 0, 1), 1.5875), False)
sketch10.addGeometry(Part.Circle(App.Vector(-331.779466, 153.454383, 0), App.Vector(0, 0, 1), 1.5875), False)
sketch10.addGeometry(Part.Circle(App.Vector(-124.004466, 153.454383, 0), App.Vector(0, 0, 1), 1.5875), False)
sketch10.addGeometry(Part.Circle(App.Vector(-124.004466, 210.552525, 0), App.Vector(0, 0, 1), 1.5875), False)
sketch10.addGeometry(Part.Circle(App.Vector(83.770534, 153.454383, 0), App.Vector(0, 0, 1), 1.5875), False)
sketch10.addGeometry(Part.Circle(App.Vector(83.770534, 210.552525, 0), App.Vector(0, 0, 1), 1.5875), False)
sketch10.addGeometry(Part.Circle(App.Vector(-15.354466, 618.178159, 0), App.Vector(0, 0, 1), 1.5875), False)
sketch10.addGeometry(Part.Circle(App.Vector(-15.354466, 478.478159, 0), App.Vector(0, 0, 1), 1.5875), False)
sketch10.addGeometry(Part.Circle(App.Vector(-15.354466, 304.628749, 0), App.Vector(0, 0, 1), 1.5875), False)
sketch10.addGeometry(Part.Circle(App.Vector(83.770534, 618.178159, 0), App.Vector(0, 0, 1), 1.5875), False)
sketch10.addGeometry(Part.Circle(App.Vector(83.770534, 304.628749, 0), App.Vector(0, 0, 1), 1.5875), False)
sketch10.addConstraint(Sketcher.Constraint("Equal", 0, 1))
sketch10.addConstraint(Sketcher.Constraint("Equal", 1, 2))
sketch10.addConstraint(Sketcher.Constraint("Equal", 2, 3))
sketch10.addConstraint(Sketcher.Constraint("Equal", 3, 4))
sketch10.addConstraint(Sketcher.Constraint("Equal", 4, 5))
sketch10.addConstraint(Sketcher.Constraint("Equal", 5, 6))
sketch10.addConstraint(Sketcher.Constraint("Equal", 6, 7))
sketch10.addConstraint(Sketcher.Constraint("Equal", 7, 8))
sketch10.addConstraint(Sketcher.Constraint("Equal", 8, 9))
sketch10.addConstraint(Sketcher.Constraint("Equal", 9, 10))
sketch10.addConstraint(Sketcher.Constraint("Equal", 10, 11))
sketch10.addConstraint(Sketcher.Constraint("Equal", 11, 12))
sketch10.addConstraint(Sketcher.Constraint("Equal", 12, 13))
sketch10.addConstraint(Sketcher.Constraint("Equal", 13, 14))
sketch10.addConstraint(Sketcher.Constraint("Equal", 14, 15))
sketch10.addConstraint(Sketcher.Constraint("Equal", 15, 16))
sketch10.addConstraint(Sketcher.Constraint("Equal", 16, 17))
sketch10.addConstraint(Sketcher.Constraint("Horizontal", 0, 3, 1, 3))
sketch10.addConstraint(Sketcher.Constraint("Horizontal", 2, 3, 4, 3))
sketch10.addConstraint(Sketcher.Constraint("Horizontal", 3, 3, 6, 3))
sketch10.addConstraint(Sketcher.Constraint("Horizontal", 8, 3, 9, 3))
sketch10.addConstraint(Sketcher.Constraint("Horizontal", 7, 3, 10, 3))
sketch10.addConstraint(Sketcher.Constraint("Horizontal", 9, 3, 11, 3))
sketch10.addConstraint(Sketcher.Constraint("Horizontal", 10, 3, 12, 3))
sketch10.addConstraint(Sketcher.Constraint("Horizontal", 6, 3, 13, 3))
sketch10.addConstraint(Sketcher.Constraint("Horizontal", 5, 3, 14, 3))
sketch10.addConstraint(Sketcher.Constraint("Horizontal", 4, 3, 15, 3))
sketch10.addConstraint(Sketcher.Constraint("Horizontal", 13, 3, 16, 3))
sketch10.addConstraint(Sketcher.Constraint("Horizontal", 15, 3, 17, 3))
sketch10.addConstraint(Sketcher.Constraint("Vertical", 1, 3, 2, 3))
sketch10.addConstraint(Sketcher.Constraint("Vertical", 2, 3, 3, 3))
sketch10.addConstraint(Sketcher.Constraint("Vertical", 4, 3, 5, 3))
sketch10.addConstraint(Sketcher.Constraint("Vertical", 5, 3, 6, 3))
sketch10.addConstraint(Sketcher.Constraint("Vertical", 3, 3, 7, 3))
sketch10.addConstraint(Sketcher.Constraint("Vertical", 7, 3, 8, 3))
sketch10.addConstraint(Sketcher.Constraint("Vertical", 9, 3, 10, 3))
sketch10.addConstraint(Sketcher.Constraint("Vertical", 0, 3, 11, 3))
sketch10.addConstraint(Sketcher.Constraint("Vertical", 11, 3, 12, 3))
sketch10.addConstraint(Sketcher.Constraint("Vertical", 13, 3, 14, 3))
sketch10.addConstraint(Sketcher.Constraint("Vertical", 14, 3, 15, 3))
sketch10.addConstraint(Sketcher.Constraint("Vertical", 12, 3, 16, 3))
sketch10.addConstraint(Sketcher.Constraint("Vertical", 16, 3, 17, 3))
sketch10.addConstraint(Sketcher.Constraint("Diameter", 0, Q("0.125 in")))
sketch10.addConstraint(Sketcher.Constraint("DistanceY", 5, 3, 3, 3, Q("5.5 in")))
sketch10.addConstraint(Sketcher.Constraint("DistanceX", 1, 3, 0, 3, 415.55))
sketch10.addConstraint(Sketcher.Constraint("DistanceX", 2, 3, 4, 3, 99.125))
sketch10.addConstraint(Sketcher.Constraint("DistanceX", 4, 3, 9, 3, 108.65))
sketch10.addConstraint(Sketcher.Constraint("DistanceX", 13, 3, 0, 3, 99.125))
sketch10.addConstraint(Sketcher.Constraint("DistanceY", -1, 1, 2, 3, 304.628749))
sketch10.addConstraint(Sketcher.Constraint("DistanceY", -1, 1, 3, 3, 618.178159))
sketch10.addConstraint(Sketcher.Constraint("DistanceY", 7, 3, 1, 3, 250.850929))
sketch10.addConstraint(Sketcher.Constraint("DistanceY", 8, 3, 7, 3, 57.098141))
sketch10.addConstraint(Sketcher.Constraint("DistanceX", -1, 1, 0, 3, 83.770534))
sketch10.addConstraint(Sketcher.Constraint("DistanceY", -1, 1, 0, 3, 461.403454))
sketch10.setExpression("Constraints[42]", "Params.sketch10_diameter")
doc.recompute()
hole6 = body.newObject("PartDesign::Hole", "Hole005")
hole6.Profile = sketch10
hole6.ThreadType = "None"
hole6.setExpression("Diameter", "Params.hole6_diameter")
hole6.DepthType = "Dimension"
hole6.setExpression("Depth", "Params.hole6_depth")
hole6.DrillPoint = "Angled"
hole6.DrillPointAngle = 118
hole6.HoleCutType = "Countersink"
hole6.setExpression("HoleCutDiameter", "Params.hole6_csink_diameter")
hole6.HoleCutCountersinkAngle = 82

# Sketch on YZ plane
sketch11 = body.newObject("Sketcher::SketchObject", "Sketch010")
sketch11.AttachmentSupport = (doc.getObject("YZ_Plane"), [""])
sketch11.MapMode = "FlatFace"
sketch11.AttachmentOffset = App.Placement(App.Vector(0, 0, -354.004466), App.Rotation())
sketch11.addGeometry(Part.Circle(App.Vector(-575.058212, 453.44631, 0), App.Vector(0, 0, 1), 1.5875), False)
sketch11.addGeometry(Part.Circle(App.Vector(-20.573474, 90.25, 0), App.Vector(0, 0, 1), 1.5875), False)
sketch11.addGeometry(Part.Circle(App.Vector(-20.573474, 31.75, 0), App.Vector(0, 0, 1), 1.5875), False)
sketch11.addGeometry(Part.Circle(App.Vector(-410.146114, 18.05669, 0), App.Vector(0, 0, 1), 1.5875), False)
sketch11.addGeometry(Part.Circle(App.Vector(-424.902349, 61.944616, 0), App.Vector(0, 0, 1), 1.5875), False)
sketch11.addGeometry(Part.Circle(App.Vector(-441.28511, 161.927711, 0), App.Vector(0, 0, 1), 1.5875), False)
sketch11.addGeometry(Part.Circle(App.Vector(-437.263531, 322.681852, 0), App.Vector(0, 0, 1), 1.5875), False)
sketch11.addGeometry(Part.Circle(App.Vector(-568.27249, 508.575718, 0), App.Vector(0, 0, 1), 1.5875), False)
sketch11.addGeometry(Part.Circle(App.Vector(-547.686185, 440.556727, 0), App.Vector(0, 0, 1), 1.5875), False)
sketch11.addGeometry(Part.Circle(App.Vector(-514.356061, 252.88098, 0), App.Vector(0, 0, 1), 1.5875), False)
sketch11.addGeometry(Part.Circle(App.Vector(-473.88796, 119.170761, 0), App.Vector(0, 0, 1), 1.5875), False)
sketch11.addConstraint(Sketcher.Constraint("Equal", 0, 1))
sketch11.addConstraint(Sketcher.Constraint("Equal", 1, 2))
sketch11.addConstraint(Sketcher.Constraint("Equal", 2, 3))
sketch11.addConstraint(Sketcher.Constraint("Equal", 3, 4))
sketch11.addConstraint(Sketcher.Constraint("Equal", 4, 5))
sketch11.addConstraint(Sketcher.Constraint("Equal", 5, 6))
sketch11.addConstraint(Sketcher.Constraint("Equal", 6, 7))
sketch11.addConstraint(Sketcher.Constraint("Equal", 7, 8))
sketch11.addConstraint(Sketcher.Constraint("Equal", 8, 9))
sketch11.addConstraint(Sketcher.Constraint("Equal", 9, 10))
sketch11.addConstraint(Sketcher.Constraint("Vertical", 1, 3, 2, 3))
sketch11.addConstraint(Sketcher.Constraint("Diameter", 0, Q("0.125 in")))
sketch11.addConstraint(Sketcher.Constraint("DistanceY", -1, 1, 2, 3, Q("1.25 in")))
sketch11.addConstraint(Sketcher.Constraint("DistanceY", -1, 1, 1, 3, 90.25))
sketch11.addConstraint(Sketcher.Constraint("DistanceX", 0, 3, 3, 3, 164.912098))
sketch11.addConstraint(Sketcher.Constraint("DistanceX", 0, 3, 5, 3, 133.773101))
sketch11.addConstraint(Sketcher.Constraint("DistanceY", 5, 3, 0, 3, 291.518598))
sketch11.addConstraint(Sketcher.Constraint("DistanceX", 9, 3, 10, 3, 40.468101))
sketch11.addConstraint(Sketcher.Constraint("DistanceX", 0, 3, -1, 1, 575.058212))
sketch11.addConstraint(Sketcher.Constraint("DistanceY", -1, 1, 0, 3, 453.44631))
sketch11.addConstraint(Sketcher.Constraint("DistanceY", -1, 1, 3, 3, 18.05669))
sketch11.addConstraint(Sketcher.Constraint("DistanceX", 4, 3, -1, 1, 424.902349))
sketch11.addConstraint(Sketcher.Constraint("DistanceX", 6, 3, -1, 1, 437.263531))
sketch11.addConstraint(Sketcher.Constraint("DistanceY", -1, 1, 6, 3, 322.681852))
sketch11.addConstraint(Sketcher.Constraint("DistanceX", 7, 3, -1, 1, 568.27249))
sketch11.addConstraint(Sketcher.Constraint("DistanceX", 9, 3, -1, 1, 514.356061))
sketch11.addConstraint(Sketcher.Constraint("DistanceY", -1, 1, 9, 3, 252.88098))
sketch11.addConstraint(Sketcher.Constraint("DistanceY", -1, 1, 10, 3, 119.170761))
sketch11.addConstraint(Sketcher.Constraint("DistanceX", 3, 3, 2, 3, 389.57264))
sketch11.addConstraint(Sketcher.Constraint("DistanceY", 0, 3, 7, 3, 55.129408))
sketch11.addConstraint(Sketcher.Constraint("DistanceY", 8, 3, 7, 3, 68.018991))
sketch11.addConstraint(Sketcher.Constraint("DistanceY", 4, 3, 8, 3, 378.612111))
sketch11.addConstraint(Sketcher.Constraint("DistanceX", 8, 3, -1, 1, 547.686185))
sketch11.setExpression("Constraints[11]", "Params.sketch11_diameter")
doc.recompute()
hole7 = body.newObject("PartDesign::Hole", "Hole006")
hole7.Profile = sketch11
hole7.ThreadType = "None"
hole7.setExpression("Diameter", "Params.hole7_diameter")
hole7.DepthType = "Dimension"
hole7.setExpression("Depth", "Params.hole7_depth")
hole7.DrillPoint = "Angled"
hole7.DrillPointAngle = 118
hole7.HoleCutType = "Countersink"
hole7.setExpression("HoleCutDiameter", "Params.hole7_csink_diameter")
hole7.HoleCutCountersinkAngle = 82
hole7.Reversed = True

doc.recompute()
